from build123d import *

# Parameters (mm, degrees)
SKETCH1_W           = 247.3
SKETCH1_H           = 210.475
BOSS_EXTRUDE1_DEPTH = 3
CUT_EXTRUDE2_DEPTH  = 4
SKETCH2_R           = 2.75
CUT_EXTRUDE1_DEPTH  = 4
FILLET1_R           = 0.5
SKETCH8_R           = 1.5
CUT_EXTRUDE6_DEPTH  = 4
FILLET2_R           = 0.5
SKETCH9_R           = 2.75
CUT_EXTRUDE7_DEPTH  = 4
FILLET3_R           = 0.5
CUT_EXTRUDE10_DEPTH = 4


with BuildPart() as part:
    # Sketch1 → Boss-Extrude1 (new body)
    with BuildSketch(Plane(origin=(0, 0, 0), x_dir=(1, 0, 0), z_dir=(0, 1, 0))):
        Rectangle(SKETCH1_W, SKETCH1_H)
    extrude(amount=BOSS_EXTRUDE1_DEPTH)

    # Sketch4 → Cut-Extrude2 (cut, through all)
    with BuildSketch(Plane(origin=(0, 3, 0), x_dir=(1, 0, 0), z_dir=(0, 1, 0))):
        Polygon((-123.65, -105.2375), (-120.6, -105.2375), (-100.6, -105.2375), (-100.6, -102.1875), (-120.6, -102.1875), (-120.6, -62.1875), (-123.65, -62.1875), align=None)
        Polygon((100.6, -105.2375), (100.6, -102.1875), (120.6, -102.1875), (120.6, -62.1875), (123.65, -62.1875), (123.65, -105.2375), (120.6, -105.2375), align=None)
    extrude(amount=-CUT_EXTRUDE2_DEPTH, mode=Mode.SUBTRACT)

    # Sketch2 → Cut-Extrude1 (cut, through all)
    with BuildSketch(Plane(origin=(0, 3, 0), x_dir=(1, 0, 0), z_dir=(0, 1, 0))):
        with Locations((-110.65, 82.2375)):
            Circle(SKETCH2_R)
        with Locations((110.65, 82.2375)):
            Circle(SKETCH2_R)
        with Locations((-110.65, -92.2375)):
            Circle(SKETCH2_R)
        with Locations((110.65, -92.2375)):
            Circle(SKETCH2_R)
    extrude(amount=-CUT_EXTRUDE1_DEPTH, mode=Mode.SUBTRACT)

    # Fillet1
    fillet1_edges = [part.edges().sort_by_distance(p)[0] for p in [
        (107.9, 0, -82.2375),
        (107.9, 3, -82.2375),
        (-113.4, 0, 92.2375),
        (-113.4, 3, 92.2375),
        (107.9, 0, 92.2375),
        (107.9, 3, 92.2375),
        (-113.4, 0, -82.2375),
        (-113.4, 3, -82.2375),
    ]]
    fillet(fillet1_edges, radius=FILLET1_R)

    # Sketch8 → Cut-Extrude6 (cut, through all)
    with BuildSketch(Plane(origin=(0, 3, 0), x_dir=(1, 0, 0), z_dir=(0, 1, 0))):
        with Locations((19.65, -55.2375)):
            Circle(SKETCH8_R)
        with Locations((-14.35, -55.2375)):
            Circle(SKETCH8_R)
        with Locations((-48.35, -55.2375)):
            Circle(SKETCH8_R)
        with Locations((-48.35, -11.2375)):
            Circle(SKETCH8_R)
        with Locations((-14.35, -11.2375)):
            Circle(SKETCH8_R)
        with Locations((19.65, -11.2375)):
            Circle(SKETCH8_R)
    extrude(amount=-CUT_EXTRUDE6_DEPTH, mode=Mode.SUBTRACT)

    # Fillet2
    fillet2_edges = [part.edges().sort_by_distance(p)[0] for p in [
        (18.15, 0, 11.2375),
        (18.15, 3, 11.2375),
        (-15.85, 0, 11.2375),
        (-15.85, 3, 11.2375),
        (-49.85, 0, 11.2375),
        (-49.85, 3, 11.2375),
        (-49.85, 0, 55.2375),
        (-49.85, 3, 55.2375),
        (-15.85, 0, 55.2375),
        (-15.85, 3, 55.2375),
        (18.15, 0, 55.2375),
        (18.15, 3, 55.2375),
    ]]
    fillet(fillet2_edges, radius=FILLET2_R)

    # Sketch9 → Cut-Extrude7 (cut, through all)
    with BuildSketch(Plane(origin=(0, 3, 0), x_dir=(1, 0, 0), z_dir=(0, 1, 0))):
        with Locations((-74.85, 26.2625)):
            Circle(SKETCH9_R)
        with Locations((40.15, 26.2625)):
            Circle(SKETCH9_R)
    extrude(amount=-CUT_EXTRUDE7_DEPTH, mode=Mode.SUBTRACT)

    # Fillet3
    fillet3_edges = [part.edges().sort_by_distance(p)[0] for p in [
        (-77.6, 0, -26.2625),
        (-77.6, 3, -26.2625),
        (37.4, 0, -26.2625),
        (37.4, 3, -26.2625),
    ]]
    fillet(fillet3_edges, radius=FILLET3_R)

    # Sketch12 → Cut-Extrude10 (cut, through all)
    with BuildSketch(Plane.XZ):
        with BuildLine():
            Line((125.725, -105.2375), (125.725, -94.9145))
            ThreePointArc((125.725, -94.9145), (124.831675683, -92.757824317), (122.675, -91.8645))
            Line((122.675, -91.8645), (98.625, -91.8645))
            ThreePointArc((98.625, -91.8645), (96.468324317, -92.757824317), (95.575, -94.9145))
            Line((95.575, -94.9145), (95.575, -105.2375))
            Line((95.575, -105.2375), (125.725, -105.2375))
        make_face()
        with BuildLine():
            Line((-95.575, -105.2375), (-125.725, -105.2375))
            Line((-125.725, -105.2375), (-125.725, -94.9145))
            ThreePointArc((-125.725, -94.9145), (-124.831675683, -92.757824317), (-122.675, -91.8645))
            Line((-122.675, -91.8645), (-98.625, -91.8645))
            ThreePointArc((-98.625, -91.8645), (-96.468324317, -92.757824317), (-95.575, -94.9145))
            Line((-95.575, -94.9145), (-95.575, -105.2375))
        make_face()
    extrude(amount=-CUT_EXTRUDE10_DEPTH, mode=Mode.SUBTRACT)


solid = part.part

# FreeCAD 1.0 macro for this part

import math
import FreeCAD as App
import Part
import Sketcher

V = App.Vector
Q = App.Units.Quantity


def edges_at(feature, points):
    """Names of the edges that pass closest to the given points."""
    edges = feature.Shape.Edges
    near = lambda p: min(range(len(edges)), key=lambda i: edges[i].distToShape(Part.Vertex(*p))[0])
    return sorted({f"Edge{near(p) + 1}" for p in points})


def add_polygon(sketch, points):
    """Adds a closed chain of lines whose ends are joined by coincident constraints."""
    first, n = sketch.GeometryCount, len(points)
    for a, b in zip(points, points[1:] + points[:1]):
        sketch.addGeometry(Part.LineSegment(App.Vector(*a, 0), App.Vector(*b, 0)), False)
    for i in range(n):
        sketch.addConstraint(Sketcher.Constraint("Coincident", first + i, 2, first + (i + 1) % n, 1))

doc = App.newDocument("Part")
body = doc.addObject("PartDesign::Body", "Body")

# Sketch on XZ plane
sketch1 = doc.addObject("Sketcher::SketchObject", "Sketch")
body.addObject(sketch1)
sketch1.AttachmentSupport = (doc.XZ_Plane, [""])
sketch1.MapMode = "FlatFace"
add_polygon(sketch1, [(-123.65, -105.2375), (-123.65, 105.2375), (123.65, 105.2375), (123.65, -105.2375)])  # lines 0-3
sketch1.addConstraint([
    Sketcher.Constraint("Vertical", 0),
    Sketcher.Constraint("Horizontal", 1),
    Sketcher.Constraint("Vertical", 2),
    Sketcher.Constraint("Horizontal", 3),
    Sketcher.Constraint("Symmetric", 0, 2, 2, 2, -1, 1),
    Sketcher.Constraint("DistanceX", 1, 1, 1, 2, Q("247.3 mm")),
    Sketcher.Constraint("DistanceY", 0, 1, 0, 2, Q("210.475 mm")),
])
pad1 = doc.addObject("PartDesign::Pad", "Pad")
body.addObject(pad1)
pad1.Profile = sketch1
pad1.Length = 3
pad1.Reversed = True

# Sketch on XZ plane
sketch2 = doc.addObject("Sketcher::SketchObject", "Sketch001")
body.addObject(sketch2)
sketch2.AttachmentSupport = (doc.XZ_Plane, [""])
sketch2.MapMode = "FlatFace"
sketch2.AttachmentOffset = App.Placement(V(0, 0, -3), App.Rotation())
add_polygon(sketch2, [(-123.65, 105.2375), (-100.6, 105.2375), (-100.6, 102.1875), (-120.6, 102.1875), (-120.6, 62.1875), (-123.65, 62.1875)])  # lines 0-5
add_polygon(sketch2, [(100.6, 102.1875), (100.6, 105.2375), (123.65, 105.2375), (123.65, 62.1875), (120.6, 62.1875), (120.6, 102.1875)])  # lines 6-11
sketch2.addConstraint([
    Sketcher.Constraint("Horizontal", 0),
    Sketcher.Constraint("Vertical", 1),
    Sketcher.Constraint("Horizontal", 2),
    Sketcher.Constraint("Vertical", 3),
    Sketcher.Constraint("Horizontal", 4),
    Sketcher.Constraint("Vertical", 5),
    Sketcher.Constraint("Vertical", 6),
    Sketcher.Constraint("Horizontal", 7),
    Sketcher.Constraint("Vertical", 8),
    Sketcher.Constraint("Horizontal", 9),
    Sketcher.Constraint("Vertical", 10),
    Sketcher.Constraint("Horizontal", 11),
    Sketcher.Constraint("Symmetric", 0, 2, 6, 2, -2),
    Sketcher.Constraint("Symmetric", 4, 2, 8, 2, -2),
    Sketcher.Constraint("Symmetric", 2, 2, 10, 2, -2),
    Sketcher.Constraint("Equal", 9, 1),
    Sketcher.Constraint("DistanceX", 2, 2, 2, 1, Q("20 mm")),
    Sketcher.Constraint("DistanceY", 3, 2, 3, 1, Q("40 mm")),
    Sketcher.Constraint("DistanceX", 0, 1, 0, 2, Q("23.05 mm")),
    Sketcher.Constraint("DistanceX", 0, 2, -1, 1, Q("100.6 mm")),
    Sketcher.Constraint("DistanceY", -1, 1, 0, 2, Q("105.2375 mm")),
])
pocket1 = doc.addObject("PartDesign::Pocket", "Pocket")
body.addObject(pocket1)
pocket1.Profile = sketch2
pocket1.Type = "ThroughAll"
pocket1.Reversed = True

# Sketch on XZ plane
sketch3 = doc.addObject("Sketcher::SketchObject", "Sketch002")
body.addObject(sketch3)
sketch3.AttachmentSupport = (doc.XZ_Plane, [""])
sketch3.MapMode = "FlatFace"
sketch3.AttachmentOffset = App.Placement(V(0, 0, -3), App.Rotation())
sketch3.addGeometry([
    Part.Circle(V(-110.65, -82.2375, 0), V(0, 0, 1), 2.75),
    Part.Circle(V(110.65, -82.2375, 0), V(0, 0, 1), 2.75),
    Part.Circle(V(-110.65, 92.2375, 0), V(0, 0, 1), 2.75),
    Part.Circle(V(110.65, 92.2375, 0), V(0, 0, 1), 2.75),
], False)
sketch3.addConstraint([
    Sketcher.Constraint("Equal", 0, 1),
    Sketcher.Constraint("Equal", 1, 2),
    Sketcher.Constraint("Equal", 2, 3),
    Sketcher.Constraint("Symmetric", 0, 3, 1, 3, -2),
    Sketcher.Constraint("Symmetric", 2, 3, 3, 3, -2),
    Sketcher.Constraint("Vertical", 0, 3, 2, 3),
    Sketcher.Constraint("Diameter", 0, Q("5.5 mm")),
    Sketcher.Constraint("DistanceX", 0, 3, 1, 3, Q("221.3 mm")),
    Sketcher.Constraint("DistanceY", 0, 3, 2, 3, Q("174.475 mm")),
    Sketcher.Constraint("DistanceY", 0, 3, -1, 1, Q("82.2375 mm")),
])
pocket2 = doc.addObject("PartDesign::Pocket", "Pocket001")
body.addObject(pocket2)
pocket2.Profile = sketch3
pocket2.Type = "ThroughAll"
pocket2.Reversed = True
doc.recompute()

fillet = doc.addObject("PartDesign::Fillet", "Fillet")
body.addObject(fillet)
fillet.Base = (pocket2, edges_at(pocket2, [
    (107.9, 0, -82.237),
    (107.9, 3, -82.237),
    (-113.4, 0, 92.237),
    (-113.4, 3, 92.237),
    (107.9, 0, 92.237),
    (107.9, 3, 92.237),
    (-113.4, 0, -82.237),
    (-113.4, 3, -82.237),
]))
fillet.Radius = 0.5

# Sketch on XZ plane
sketch4 = doc.addObject("Sketcher::SketchObject", "Sketch003")
body.addObject(sketch4)
sketch4.AttachmentSupport = (doc.XZ_Plane, [""])
sketch4.MapMode = "FlatFace"
sketch4.AttachmentOffset = App.Placement(V(0, 0, -3), App.Rotation())
sketch4.addGeometry([
    Part.Circle(V(19.65, 55.2375, 0), V(0, 0, 1), 1.5),  # 0
    Part.Circle(V(-14.35, 55.2375, 0), V(0, 0, 1), 1.5),  # 1
    Part.Circle(V(-48.35, 55.2375, 0), V(0, 0, 1), 1.5),  # 2
    Part.Circle(V(-48.35, 11.2375, 0), V(0, 0, 1), 1.5),  # 3
    Part.Circle(V(-14.35, 11.2375, 0), V(0, 0, 1), 1.5),  # 4
    Part.Circle(V(19.65, 11.2375, 0), V(0, 0, 1), 1.5),  # 5
], False)
sketch4.addConstraint([
    Sketcher.Constraint("Equal", 0, 1),
    Sketcher.Constraint("Equal", 1, 2),
    Sketcher.Constraint("Equal", 2, 3),
    Sketcher.Constraint("Equal", 3, 4),
    Sketcher.Constraint("Equal", 4, 5),
    Sketcher.Constraint("Horizontal", 0, 3, 1, 3),
    Sketcher.Constraint("Horizontal", 1, 3, 2, 3),
    Sketcher.Constraint("Horizontal", 3, 3, 4, 3),
    Sketcher.Constraint("Horizontal", 4, 3, 5, 3),
    Sketcher.Constraint("Vertical", 2, 3, 3, 3),
    Sketcher.Constraint("Vertical", 1, 3, 4, 3),
    Sketcher.Constraint("Vertical", 0, 3, 5, 3),
    Sketcher.Constraint("Diameter", 0, Q("3 mm")),
    Sketcher.Constraint("DistanceX", 1, 3, 0, 3, Q("34 mm")),
    Sketcher.Constraint("DistanceX", 2, 3, 1, 3, Q("34 mm")),
    Sketcher.Constraint("DistanceY", 3, 3, 2, 3, Q("44 mm")),
    Sketcher.Constraint("DistanceX", -1, 1, 0, 3, Q("19.65 mm")),
    Sketcher.Constraint("DistanceY", -1, 1, 0, 3, Q("55.2375 mm")),
])
pocket3 = doc.addObject("PartDesign::Pocket", "Pocket002")
body.addObject(pocket3)
pocket3.Profile = sketch4
pocket3.Type = "ThroughAll"
pocket3.Reversed = True
doc.recompute()

fillet2 = doc.addObject("PartDesign::Fillet", "Fillet001")
body.addObject(fillet2)
fillet2.Base = (pocket3, edges_at(pocket3, [
    (18.15, 0, 11.238),
    (18.15, 3, 11.238),
    (-15.85, 0, 11.238),
    (-15.85, 3, 11.238),
    (-49.85, 0, 11.238),
    (-49.85, 3, 11.238),
    (-49.85, 0, 55.237),
    (-49.85, 3, 55.237),
    (-15.85, 0, 55.237),
    (-15.85, 3, 55.237),
    (18.15, 0, 55.237),
    (18.15, 3, 55.237),
]))
fillet2.Radius = 0.5

# Sketch on XZ plane
sketch5 = doc.addObject("Sketcher::SketchObject", "Sketch004")
body.addObject(sketch5)
sketch5.AttachmentSupport = (doc.XZ_Plane, [""])
sketch5.MapMode = "FlatFace"
sketch5.AttachmentOffset = App.Placement(V(0, 0, -3), App.Rotation())
sketch5.addGeometry([
    Part.Circle(V(-74.85, -26.2625, 0), V(0, 0, 1), 2.75),
    Part.Circle(V(40.15, -26.2625, 0), V(0, 0, 1), 2.75),
], False)
sketch5.addConstraint([
    Sketcher.Constraint("Equal", 0, 1),
    Sketcher.Constraint("Horizontal", 0, 3, 1, 3),
    Sketcher.Constraint("Diameter", 0, Q("5.5 mm")),
    Sketcher.Constraint("DistanceX", 0, 3, 1, 3, Q("115 mm")),
    Sketcher.Constraint("DistanceX", 0, 3, -1, 1, Q("74.85 mm")),
    Sketcher.Constraint("DistanceY", 0, 3, -1, 1, Q("26.2625 mm")),
])
pocket4 = doc.addObject("PartDesign::Pocket", "Pocket003")
body.addObject(pocket4)
pocket4.Profile = sketch5
pocket4.Type = "ThroughAll"
pocket4.Reversed = True
doc.recompute()

fillet3 = doc.addObject("PartDesign::Fillet", "Fillet002")
body.addObject(fillet3)
fillet3.Base = (pocket4, edges_at(pocket4, [
    (-77.6, 0, -26.262),
    (-77.6, 3, -26.262),
    (37.4, 0, -26.262),
    (37.4, 3, -26.262),
]))
fillet3.Radius = 0.5

# Sketch on XZ plane
sketch6 = doc.addObject("Sketcher::SketchObject", "Sketch005")
body.addObject(sketch6)
sketch6.AttachmentSupport = (doc.XZ_Plane, [""])
sketch6.MapMode = "FlatFace"
sketch6.addGeometry([
    Part.LineSegment(V(125.725, -105.2375, 0), V(125.725, -94.9145, 0)),  # 0
    Part.ArcOfCircle(Part.Circle(V(122.675, -94.9145, 0), V(0, 0, 1), 3.05), math.radians(0), math.radians(90)),  # 1
    Part.LineSegment(V(122.675, -91.8645, 0), V(98.625, -91.8645, 0)),  # 2
    Part.ArcOfCircle(Part.Circle(V(98.625, -94.9145, 0), V(0, 0, 1), 3.05), math.radians(90), math.radians(180)),  # 3
    Part.LineSegment(V(95.575, -94.9145, 0), V(95.575, -105.2375, 0)),  # 4
    Part.LineSegment(V(95.575, -105.2375, 0), V(125.725, -105.2375, 0)),  # 5
    Part.LineSegment(V(-125.725, -105.2375, 0), V(-95.575, -105.2375, 0)),  # 6
    Part.LineSegment(V(-95.575, -105.2375, 0), V(-95.575, -94.9145, 0)),  # 7
    Part.ArcOfCircle(Part.Circle(V(-98.625, -94.9145, 0), V(0, 0, 1), 3.05), math.radians(0), math.radians(90)),  # 8
    Part.LineSegment(V(-98.625, -91.8645, 0), V(-122.675, -91.8645, 0)),  # 9
    Part.ArcOfCircle(Part.Circle(V(-122.675, -94.9145, 0), V(0, 0, 1), 3.05), math.radians(90), math.radians(180)),  # 10
    Part.LineSegment(V(-125.725, -94.9145, 0), V(-125.725, -105.2375, 0)),  # 11
], False)
sketch6.addConstraint([
    Sketcher.Constraint("Tangent", 0, 2, 1, 1),
    Sketcher.Constraint("Tangent", 1, 2, 2, 1),
    Sketcher.Constraint("Tangent", 2, 2, 3, 1),
    Sketcher.Constraint("Tangent", 3, 2, 4, 1),
    Sketcher.Constraint("Coincident", 4, 2, 5, 1),
    Sketcher.Constraint("Coincident", 5, 2, 0, 1),
    Sketcher.Constraint("Coincident", 6, 2, 7, 1),
    Sketcher.Constraint("Tangent", 7, 2, 8, 1),
    Sketcher.Constraint("Tangent", 8, 2, 9, 1),
    Sketcher.Constraint("Tangent", 9, 2, 10, 1),
    Sketcher.Constraint("Tangent", 10, 2, 11, 1),
    Sketcher.Constraint("Coincident", 11, 2, 6, 1),
    Sketcher.Constraint("Vertical", 0),
    Sketcher.Constraint("Horizontal", 2),
    Sketcher.Constraint("Vertical", 4),
    Sketcher.Constraint("Horizontal", 5),
    Sketcher.Constraint("Horizontal", 6),
    Sketcher.Constraint("Vertical", 7),
    Sketcher.Constraint("Horizontal", 9),
    Sketcher.Constraint("Vertical", 11),
    Sketcher.Constraint("Equal", 1, 3),
    Sketcher.Constraint("Equal", 3, 8),
    Sketcher.Constraint("Equal", 8, 10),
    Sketcher.Constraint("Symmetric", 3, 3, 8, 3, -2),
    Sketcher.Constraint("Symmetric", 5, 2, 11, 2, -2),
    Sketcher.Constraint("Radius", 1, Q("3.05 mm")),
    Sketcher.Constraint("DistanceX", 2, 2, 2, 1, Q("24.05 mm")),
    Sketcher.Constraint("DistanceX", 8, 3, 1, 3, Q("221.3 mm")),
    Sketcher.Constraint("DistanceY", 0, 1, 0, 2, Q("10.323 mm")),
    Sketcher.Constraint("DistanceY", 1, 3, -1, 1, Q("94.9145 mm")),
])
pocket5 = doc.addObject("PartDesign::Pocket", "Pocket004")
body.addObject(pocket5)
pocket5.Profile = sketch6
pocket5.Type = "ThroughAll"

doc.recompute()
